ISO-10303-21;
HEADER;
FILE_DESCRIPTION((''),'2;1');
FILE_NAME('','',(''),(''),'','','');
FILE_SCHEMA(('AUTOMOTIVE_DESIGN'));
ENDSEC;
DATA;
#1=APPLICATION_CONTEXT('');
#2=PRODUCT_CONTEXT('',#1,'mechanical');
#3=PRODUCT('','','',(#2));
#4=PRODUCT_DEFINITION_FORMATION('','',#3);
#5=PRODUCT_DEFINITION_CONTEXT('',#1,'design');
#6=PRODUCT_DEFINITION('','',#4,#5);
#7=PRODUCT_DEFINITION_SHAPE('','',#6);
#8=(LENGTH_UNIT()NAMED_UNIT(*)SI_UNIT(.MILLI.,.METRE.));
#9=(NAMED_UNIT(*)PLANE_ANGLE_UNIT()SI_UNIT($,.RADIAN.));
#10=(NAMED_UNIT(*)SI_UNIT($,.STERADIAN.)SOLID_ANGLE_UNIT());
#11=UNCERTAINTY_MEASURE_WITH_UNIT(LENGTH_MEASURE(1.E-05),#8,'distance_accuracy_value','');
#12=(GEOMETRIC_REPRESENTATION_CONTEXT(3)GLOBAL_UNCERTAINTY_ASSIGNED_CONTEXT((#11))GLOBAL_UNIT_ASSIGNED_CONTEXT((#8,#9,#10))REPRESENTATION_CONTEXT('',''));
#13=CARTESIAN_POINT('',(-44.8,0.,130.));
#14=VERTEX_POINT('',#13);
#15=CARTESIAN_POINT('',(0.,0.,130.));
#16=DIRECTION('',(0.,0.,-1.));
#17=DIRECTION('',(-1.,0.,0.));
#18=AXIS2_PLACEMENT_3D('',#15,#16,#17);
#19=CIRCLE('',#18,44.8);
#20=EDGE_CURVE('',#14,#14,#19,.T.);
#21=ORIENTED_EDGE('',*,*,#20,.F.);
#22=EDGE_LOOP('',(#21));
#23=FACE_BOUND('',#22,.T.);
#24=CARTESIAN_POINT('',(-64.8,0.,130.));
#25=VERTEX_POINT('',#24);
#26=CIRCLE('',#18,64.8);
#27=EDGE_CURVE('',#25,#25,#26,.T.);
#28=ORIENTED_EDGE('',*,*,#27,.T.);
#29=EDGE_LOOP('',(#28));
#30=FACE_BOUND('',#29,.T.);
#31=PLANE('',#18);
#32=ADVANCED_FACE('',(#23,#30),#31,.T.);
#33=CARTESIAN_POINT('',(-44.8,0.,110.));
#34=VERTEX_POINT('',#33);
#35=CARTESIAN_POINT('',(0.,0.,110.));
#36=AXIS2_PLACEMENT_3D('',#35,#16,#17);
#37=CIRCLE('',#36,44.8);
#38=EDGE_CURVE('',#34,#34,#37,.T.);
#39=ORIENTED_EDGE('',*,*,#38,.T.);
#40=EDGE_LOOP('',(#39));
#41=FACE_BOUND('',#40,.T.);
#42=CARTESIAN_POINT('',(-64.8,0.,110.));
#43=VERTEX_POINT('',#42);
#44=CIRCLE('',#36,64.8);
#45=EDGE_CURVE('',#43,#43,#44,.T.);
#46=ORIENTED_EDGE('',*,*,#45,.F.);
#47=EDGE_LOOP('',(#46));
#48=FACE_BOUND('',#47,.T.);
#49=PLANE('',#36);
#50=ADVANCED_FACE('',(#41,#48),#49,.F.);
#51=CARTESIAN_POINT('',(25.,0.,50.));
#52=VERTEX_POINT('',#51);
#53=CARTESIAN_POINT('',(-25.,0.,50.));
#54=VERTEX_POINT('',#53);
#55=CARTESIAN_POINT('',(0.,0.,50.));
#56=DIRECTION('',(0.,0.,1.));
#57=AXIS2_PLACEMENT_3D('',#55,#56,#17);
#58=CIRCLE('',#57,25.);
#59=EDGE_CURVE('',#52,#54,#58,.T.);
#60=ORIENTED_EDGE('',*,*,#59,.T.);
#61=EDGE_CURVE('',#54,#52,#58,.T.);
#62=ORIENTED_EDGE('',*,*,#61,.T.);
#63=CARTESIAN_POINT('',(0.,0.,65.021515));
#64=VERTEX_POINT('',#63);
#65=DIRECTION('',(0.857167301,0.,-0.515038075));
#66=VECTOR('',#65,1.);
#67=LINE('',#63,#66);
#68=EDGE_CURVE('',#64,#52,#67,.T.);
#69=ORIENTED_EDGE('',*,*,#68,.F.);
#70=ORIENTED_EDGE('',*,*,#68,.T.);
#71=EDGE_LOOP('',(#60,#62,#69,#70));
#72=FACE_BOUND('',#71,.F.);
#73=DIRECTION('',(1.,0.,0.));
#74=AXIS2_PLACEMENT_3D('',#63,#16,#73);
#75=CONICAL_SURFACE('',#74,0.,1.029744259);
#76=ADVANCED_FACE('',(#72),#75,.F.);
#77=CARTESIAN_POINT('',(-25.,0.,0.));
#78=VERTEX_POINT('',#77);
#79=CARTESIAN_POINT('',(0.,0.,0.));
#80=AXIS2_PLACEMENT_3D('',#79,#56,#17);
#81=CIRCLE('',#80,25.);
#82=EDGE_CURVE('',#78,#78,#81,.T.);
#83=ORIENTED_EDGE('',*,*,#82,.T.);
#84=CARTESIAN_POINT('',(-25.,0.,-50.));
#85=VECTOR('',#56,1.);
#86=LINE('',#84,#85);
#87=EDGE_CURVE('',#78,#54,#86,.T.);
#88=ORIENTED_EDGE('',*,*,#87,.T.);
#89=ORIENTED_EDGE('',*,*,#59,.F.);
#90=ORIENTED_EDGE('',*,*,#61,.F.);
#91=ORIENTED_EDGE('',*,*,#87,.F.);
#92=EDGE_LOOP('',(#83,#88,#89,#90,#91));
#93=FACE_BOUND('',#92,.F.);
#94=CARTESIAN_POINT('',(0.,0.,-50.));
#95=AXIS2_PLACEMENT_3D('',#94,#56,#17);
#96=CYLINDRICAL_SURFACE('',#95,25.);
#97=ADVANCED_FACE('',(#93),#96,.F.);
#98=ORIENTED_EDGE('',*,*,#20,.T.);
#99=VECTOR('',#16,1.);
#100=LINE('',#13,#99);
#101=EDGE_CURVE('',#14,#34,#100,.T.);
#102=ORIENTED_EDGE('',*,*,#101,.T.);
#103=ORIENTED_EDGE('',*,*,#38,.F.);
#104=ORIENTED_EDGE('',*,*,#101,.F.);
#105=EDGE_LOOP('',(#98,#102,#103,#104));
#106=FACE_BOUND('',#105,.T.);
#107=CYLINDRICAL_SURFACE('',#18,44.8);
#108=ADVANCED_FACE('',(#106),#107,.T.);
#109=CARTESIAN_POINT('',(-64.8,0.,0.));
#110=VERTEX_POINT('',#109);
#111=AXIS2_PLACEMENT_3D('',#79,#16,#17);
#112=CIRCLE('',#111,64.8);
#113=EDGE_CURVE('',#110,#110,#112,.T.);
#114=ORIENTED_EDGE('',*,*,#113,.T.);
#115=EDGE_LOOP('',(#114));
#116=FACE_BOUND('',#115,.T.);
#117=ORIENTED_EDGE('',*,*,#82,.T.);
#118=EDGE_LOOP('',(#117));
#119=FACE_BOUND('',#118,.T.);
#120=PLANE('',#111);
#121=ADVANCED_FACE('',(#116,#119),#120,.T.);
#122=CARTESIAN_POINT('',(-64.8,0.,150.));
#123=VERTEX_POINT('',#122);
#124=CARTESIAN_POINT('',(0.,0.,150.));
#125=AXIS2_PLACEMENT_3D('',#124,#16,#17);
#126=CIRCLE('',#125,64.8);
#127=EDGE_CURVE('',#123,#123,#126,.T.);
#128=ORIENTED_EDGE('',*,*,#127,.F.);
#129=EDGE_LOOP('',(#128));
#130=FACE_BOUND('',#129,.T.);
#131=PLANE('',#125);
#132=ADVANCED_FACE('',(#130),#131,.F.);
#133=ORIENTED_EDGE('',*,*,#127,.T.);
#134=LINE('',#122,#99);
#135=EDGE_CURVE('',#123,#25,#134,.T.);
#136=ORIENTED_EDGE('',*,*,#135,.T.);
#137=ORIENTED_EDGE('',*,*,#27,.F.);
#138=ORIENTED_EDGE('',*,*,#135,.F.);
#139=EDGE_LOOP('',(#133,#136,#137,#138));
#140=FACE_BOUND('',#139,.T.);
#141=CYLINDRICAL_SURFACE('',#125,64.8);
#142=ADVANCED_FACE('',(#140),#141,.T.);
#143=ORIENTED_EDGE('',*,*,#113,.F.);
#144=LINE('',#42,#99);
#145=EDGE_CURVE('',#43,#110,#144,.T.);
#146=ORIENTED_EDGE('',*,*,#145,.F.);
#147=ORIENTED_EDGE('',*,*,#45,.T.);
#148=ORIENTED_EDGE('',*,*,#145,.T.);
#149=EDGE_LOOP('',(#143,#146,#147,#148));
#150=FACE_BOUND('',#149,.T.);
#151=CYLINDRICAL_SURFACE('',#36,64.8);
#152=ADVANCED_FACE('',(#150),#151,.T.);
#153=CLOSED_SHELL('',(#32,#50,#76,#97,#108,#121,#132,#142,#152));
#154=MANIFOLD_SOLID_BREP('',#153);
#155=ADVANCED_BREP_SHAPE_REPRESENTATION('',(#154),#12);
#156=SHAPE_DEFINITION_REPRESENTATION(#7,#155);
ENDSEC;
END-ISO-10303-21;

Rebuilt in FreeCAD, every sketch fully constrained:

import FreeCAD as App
import Part
import Sketcher

V = App.Vector
Q = App.Units.Quantity

doc = App.newDocument("Part")
body = doc.addObject("PartDesign::Body", "Body")

# Sketch on XZ plane
sketch1 = body.newObject("Sketcher::SketchObject", "Sketch")
sketch1.AttachmentSupport = (doc.getObject("XZ_Plane"), [""])
sketch1.MapMode = "FlatFace"
sketch1.addGeometry([
    Part.LineSegment(V(-64.8, 0, 0), V(0, 0, 0)),  # 0
    Part.LineSegment(V(0, 0, 0), V(0, 150, 0)),  # 1
    Part.LineSegment(V(0, 150, 0), V(-64.8, 150, 0)),  # 2
    Part.LineSegment(V(-64.8, 150, 0), V(-64.8, 130, 0)),  # 3
    Part.LineSegment(V(-64.8, 130, 0), V(-44.8, 130, 0)),  # 4
    Part.LineSegment(V(-44.8, 130, 0), V(-44.8, 110, 0)),  # 5
    Part.LineSegment(V(-44.8, 110, 0), V(-64.8, 110, 0)),  # 6
    Part.LineSegment(V(-64.8, 110, 0), V(-64.8, 0, 0)),  # 7
], False)
sketch1.addConstraint([
    Sketcher.Constraint("Coincident", 0, 2, 1, 1),
    Sketcher.Constraint("Coincident", 1, 2, 2, 1),
    Sketcher.Constraint("Coincident", 2, 2, 3, 1),
    Sketcher.Constraint("Coincident", 3, 2, 4, 1),
    Sketcher.Constraint("Coincident", 4, 2, 5, 1),
    Sketcher.Constraint("Coincident", 5, 2, 6, 1),
    Sketcher.Constraint("Coincident", 6, 2, 7, 1),
    Sketcher.Constraint("Coincident", 7, 2, 0, 1),
    Sketcher.Constraint("Horizontal", 0),
    Sketcher.Constraint("Vertical", 1),
    Sketcher.Constraint("Horizontal", 2),
    Sketcher.Constraint("Vertical", 3),
    Sketcher.Constraint("Horizontal", 4),
    Sketcher.Constraint("Vertical", 5),
    Sketcher.Constraint("Horizontal", 6),
    Sketcher.Constraint("Vertical", 7),
    Sketcher.Constraint("Coincident", 0, 2, -1, 1),
    Sketcher.Constraint("Vertical", 3, 2, 6, 2),
    Sketcher.Constraint("Equal", 6, 3),
    Sketcher.Constraint("Equal", 3, 5),
    Sketcher.Constraint("DistanceX", 4, 1, 4, 2, Q("20 mm")),
    Sketcher.Constraint("DistanceY", 1, 1, 1, 2, Q("150 mm")),
    Sketcher.Constraint("DistanceX", 0, 1, 0, 2, Q("64.8 mm")),
])
revolution = body.newObject("PartDesign::Revolution", "Revolution")
revolution.Profile = sketch1
revolution.ReferenceAxis = (sketch1, ["V_Axis"])
revolution.Angle = 360

# Sketch on XY plane
sketch2 = body.newObject("Sketcher::SketchObject", "Sketch001")
sketch2.AttachmentSupport = (doc.getObject("XY_Plane"), [""])
sketch2.MapMode = "FlatFace"
sketch2.addGeometry(Part.Circle(V(0, 0, 0), V(0, 0, 1), 25), False)
sketch2.addConstraint([
    Sketcher.Constraint("Coincident", 0, 3, -1, 1),
    Sketcher.Constraint("Diameter", 0, Q("50 mm")),
])
doc.recompute()
hole = body.newObject("PartDesign::Hole", "Hole")
hole.Profile = sketch2
hole.ThreadType = "None"
hole.Diameter = 50
hole.DepthType = "Dimension"
hole.Depth = 50
hole.DrillPoint = "Angled"
hole.DrillPointAngle = 118
hole.Reversed = True

doc.recompute()
